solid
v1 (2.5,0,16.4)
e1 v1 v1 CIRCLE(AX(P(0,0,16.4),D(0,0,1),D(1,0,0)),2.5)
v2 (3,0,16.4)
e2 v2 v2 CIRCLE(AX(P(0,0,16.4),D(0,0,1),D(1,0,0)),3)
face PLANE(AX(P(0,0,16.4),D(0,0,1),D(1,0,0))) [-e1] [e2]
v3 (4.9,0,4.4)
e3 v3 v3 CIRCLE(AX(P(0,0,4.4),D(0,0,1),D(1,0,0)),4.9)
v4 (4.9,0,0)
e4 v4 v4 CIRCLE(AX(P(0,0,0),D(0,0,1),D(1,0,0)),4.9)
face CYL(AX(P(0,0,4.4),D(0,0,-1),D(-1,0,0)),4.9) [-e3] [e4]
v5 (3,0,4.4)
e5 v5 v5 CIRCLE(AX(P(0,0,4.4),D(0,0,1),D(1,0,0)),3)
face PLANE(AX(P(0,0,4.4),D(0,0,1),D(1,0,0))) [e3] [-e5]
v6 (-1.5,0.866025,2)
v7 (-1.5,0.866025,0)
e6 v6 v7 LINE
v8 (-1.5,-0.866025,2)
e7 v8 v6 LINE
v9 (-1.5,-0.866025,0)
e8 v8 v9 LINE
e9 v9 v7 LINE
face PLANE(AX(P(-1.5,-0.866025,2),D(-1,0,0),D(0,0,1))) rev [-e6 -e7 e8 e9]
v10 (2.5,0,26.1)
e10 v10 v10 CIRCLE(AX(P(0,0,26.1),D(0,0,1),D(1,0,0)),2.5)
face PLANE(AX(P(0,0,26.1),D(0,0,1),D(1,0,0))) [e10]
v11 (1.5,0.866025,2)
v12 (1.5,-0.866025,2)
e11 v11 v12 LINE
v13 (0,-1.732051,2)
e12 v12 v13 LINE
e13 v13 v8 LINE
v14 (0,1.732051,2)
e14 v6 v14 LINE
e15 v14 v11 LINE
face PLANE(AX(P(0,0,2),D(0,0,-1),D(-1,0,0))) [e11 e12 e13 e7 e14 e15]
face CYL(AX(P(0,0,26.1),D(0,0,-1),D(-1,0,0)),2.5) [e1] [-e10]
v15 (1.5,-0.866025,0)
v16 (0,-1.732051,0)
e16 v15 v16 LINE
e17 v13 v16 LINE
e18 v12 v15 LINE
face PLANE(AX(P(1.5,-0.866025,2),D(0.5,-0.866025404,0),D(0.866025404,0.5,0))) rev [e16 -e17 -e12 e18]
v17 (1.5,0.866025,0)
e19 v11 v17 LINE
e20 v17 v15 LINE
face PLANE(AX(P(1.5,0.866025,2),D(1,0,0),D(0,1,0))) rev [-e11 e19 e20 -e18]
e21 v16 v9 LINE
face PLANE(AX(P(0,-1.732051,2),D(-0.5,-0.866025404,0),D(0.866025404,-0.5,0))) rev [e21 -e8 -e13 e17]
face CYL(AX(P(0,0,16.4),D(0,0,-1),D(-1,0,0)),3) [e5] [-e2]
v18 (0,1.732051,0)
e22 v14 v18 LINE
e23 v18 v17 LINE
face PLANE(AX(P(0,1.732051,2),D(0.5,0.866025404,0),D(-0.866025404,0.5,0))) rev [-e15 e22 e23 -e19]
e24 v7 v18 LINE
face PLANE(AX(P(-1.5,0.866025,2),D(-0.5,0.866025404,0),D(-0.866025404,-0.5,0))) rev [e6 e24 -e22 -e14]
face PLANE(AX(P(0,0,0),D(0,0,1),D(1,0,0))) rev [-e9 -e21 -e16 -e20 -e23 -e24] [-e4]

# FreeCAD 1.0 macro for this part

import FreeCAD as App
import Part
import Sketcher
from FreeCAD import Vector
Q = App.Units.Quantity

doc = App.newDocument("Part")
body = doc.addObject("PartDesign::Body", "Body")

# Sketch on XY plane
sketch1 = body.newObject("Sketcher::SketchObject", "Sketch")
sketch1.AttachmentSupport = (doc.getObject("XY_Plane"), [""])
sketch1.MapMode = "FlatFace"
sketch1.addGeometry(Part.Circle(Vector(0, 0, 0), Vector(0, 0, 1), 4.9), False)
sketch1.addConstraint(Sketcher.Constraint("Coincident", 0, 3, -1, 1))
sketch1.addConstraint(Sketcher.Constraint("Diameter", 0, Q("9.8 mm")))
pad1 = body.newObject("PartDesign::Pad", "Pad")
pad1.Profile = sketch1
pad1.Length = 4.4

# Sketch on XY plane
sketch2 = body.newObject("Sketcher::SketchObject", "Sketch001")
sketch2.AttachmentSupport = (doc.getObject("XY_Plane"), [""])
sketch2.MapMode = "FlatFace"
sketch2.AttachmentOffset = App.Placement(Vector(0, 0, 4.4), App.Rotation())
sketch2.addGeometry(Part.Circle(Vector(0, 0, 0), Vector(0, 0, 1), 3), False)
sketch2.addConstraint(Sketcher.Constraint("Coincident", 0, 3, -1, 1))
sketch2.addConstraint(Sketcher.Constraint("Diameter", 0, Q("6 mm")))
pad2 = body.newObject("PartDesign::Pad", "Pad001")
pad2.Profile = sketch2
pad2.Length = 12

# Sketch on XY plane
sketch3 = body.newObject("Sketcher::SketchObject", "Sketch002")
sketch3.AttachmentSupport = (doc.getObject("XY_Plane"), [""])
sketch3.MapMode = "FlatFace"
sketch3.AttachmentOffset = App.Placement(Vector(0, 0, 16.4), App.Rotation())
sketch3.addGeometry(Part.Circle(Vector(0, 0, 0), Vector(0, 0, 1), 2.5), False)
sketch3.addConstraint(Sketcher.Constraint("Coincident", 0, 3, -1, 1))
sketch3.addConstraint(Sketcher.Constraint("Diameter", 0, Q("5 mm")))
pad3 = body.newObject("PartDesign::Pad", "Pad002")
pad3.Profile = sketch3
pad3.Length = 9.7

# Sketch on XY plane
sketch4 = body.newObject("Sketcher::SketchObject", "Sketch003")
sketch4.AttachmentSupport = (doc.getObject("XY_Plane"), [""])
sketch4.MapMode = "FlatFace"
sketch4.addGeometry(Part.LineSegment(Vector(0, 1.732051, 0), Vector(1.5, 0.866025, 0)), False)
sketch4.addGeometry(Part.LineSegment(Vector(1.5, 0.866025, 0), Vector(1.5, -0.866025, 0)), False)
sketch4.addGeometry(Part.LineSegment(Vector(1.5, -0.866025, 0), Vector(0, -1.732051, 0)), False)
sketch4.addGeometry(Part.LineSegment(Vector(0, -1.732051, 0), Vector(-1.5, -0.866025, 0)), False)
sketch4.addGeometry(Part.LineSegment(Vector(-1.5, -0.866025, 0), Vector(-1.5, 0.866025, 0)), False)
sketch4.addGeometry(Part.LineSegment(Vector(-1.5, 0.866025, 0), Vector(0, 1.732051, 0)), False)
sketch4.addConstraint(Sketcher.Constraint("Coincident", 0, 2, 1, 1))
sketch4.addConstraint(Sketcher.Constraint("Coincident", 1, 2, 2, 1))
sketch4.addConstraint(Sketcher.Constraint("Coincident", 2, 2, 3, 1))
sketch4.addConstraint(Sketcher.Constraint("Coincident", 3, 2, 4, 1))
sketch4.addConstraint(Sketcher.Constraint("Coincident", 4, 2, 5, 1))
sketch4.addConstraint(Sketcher.Constraint("Coincident", 5, 2, 0, 1))
sketch4.addConstraint(Sketcher.Constraint("Vertical", 1))
sketch4.addConstraint(Sketcher.Constraint("Vertical", 4))
sketch4.addConstraint(Sketcher.Constraint("Symmetric", 0, 2, 3, 2, -1, 1))
sketch4.addConstraint(Sketcher.Constraint("Symmetric", 2, 2, 5, 2, -1, 1))
sketch4.addConstraint(Sketcher.Constraint("PointOnObject", 2, 2, -2))
sketch4.addConstraint(Sketcher.Constraint("Parallel", 2, 5))
sketch4.addConstraint(Sketcher.Constraint("Horizontal", 1, 2, 3, 2))
sketch4.addConstraint(Sketcher.Constraint("Angle", 0, Q("-30 deg")))
sketch4.addConstraint(Sketcher.Constraint("DistanceX", 3, 2, 1, 2, Q("3 mm")))
sketch4.addConstraint(Sketcher.Constraint("DistanceY", 1, 2, 1, 1, Q("1.732051 mm")))
pocket1 = body.newObject("PartDesign::Pocket", "Pocket")
pocket1.Profile = sketch4
pocket1.Length = 2
pocket1.Reversed = True

doc.recompute()
